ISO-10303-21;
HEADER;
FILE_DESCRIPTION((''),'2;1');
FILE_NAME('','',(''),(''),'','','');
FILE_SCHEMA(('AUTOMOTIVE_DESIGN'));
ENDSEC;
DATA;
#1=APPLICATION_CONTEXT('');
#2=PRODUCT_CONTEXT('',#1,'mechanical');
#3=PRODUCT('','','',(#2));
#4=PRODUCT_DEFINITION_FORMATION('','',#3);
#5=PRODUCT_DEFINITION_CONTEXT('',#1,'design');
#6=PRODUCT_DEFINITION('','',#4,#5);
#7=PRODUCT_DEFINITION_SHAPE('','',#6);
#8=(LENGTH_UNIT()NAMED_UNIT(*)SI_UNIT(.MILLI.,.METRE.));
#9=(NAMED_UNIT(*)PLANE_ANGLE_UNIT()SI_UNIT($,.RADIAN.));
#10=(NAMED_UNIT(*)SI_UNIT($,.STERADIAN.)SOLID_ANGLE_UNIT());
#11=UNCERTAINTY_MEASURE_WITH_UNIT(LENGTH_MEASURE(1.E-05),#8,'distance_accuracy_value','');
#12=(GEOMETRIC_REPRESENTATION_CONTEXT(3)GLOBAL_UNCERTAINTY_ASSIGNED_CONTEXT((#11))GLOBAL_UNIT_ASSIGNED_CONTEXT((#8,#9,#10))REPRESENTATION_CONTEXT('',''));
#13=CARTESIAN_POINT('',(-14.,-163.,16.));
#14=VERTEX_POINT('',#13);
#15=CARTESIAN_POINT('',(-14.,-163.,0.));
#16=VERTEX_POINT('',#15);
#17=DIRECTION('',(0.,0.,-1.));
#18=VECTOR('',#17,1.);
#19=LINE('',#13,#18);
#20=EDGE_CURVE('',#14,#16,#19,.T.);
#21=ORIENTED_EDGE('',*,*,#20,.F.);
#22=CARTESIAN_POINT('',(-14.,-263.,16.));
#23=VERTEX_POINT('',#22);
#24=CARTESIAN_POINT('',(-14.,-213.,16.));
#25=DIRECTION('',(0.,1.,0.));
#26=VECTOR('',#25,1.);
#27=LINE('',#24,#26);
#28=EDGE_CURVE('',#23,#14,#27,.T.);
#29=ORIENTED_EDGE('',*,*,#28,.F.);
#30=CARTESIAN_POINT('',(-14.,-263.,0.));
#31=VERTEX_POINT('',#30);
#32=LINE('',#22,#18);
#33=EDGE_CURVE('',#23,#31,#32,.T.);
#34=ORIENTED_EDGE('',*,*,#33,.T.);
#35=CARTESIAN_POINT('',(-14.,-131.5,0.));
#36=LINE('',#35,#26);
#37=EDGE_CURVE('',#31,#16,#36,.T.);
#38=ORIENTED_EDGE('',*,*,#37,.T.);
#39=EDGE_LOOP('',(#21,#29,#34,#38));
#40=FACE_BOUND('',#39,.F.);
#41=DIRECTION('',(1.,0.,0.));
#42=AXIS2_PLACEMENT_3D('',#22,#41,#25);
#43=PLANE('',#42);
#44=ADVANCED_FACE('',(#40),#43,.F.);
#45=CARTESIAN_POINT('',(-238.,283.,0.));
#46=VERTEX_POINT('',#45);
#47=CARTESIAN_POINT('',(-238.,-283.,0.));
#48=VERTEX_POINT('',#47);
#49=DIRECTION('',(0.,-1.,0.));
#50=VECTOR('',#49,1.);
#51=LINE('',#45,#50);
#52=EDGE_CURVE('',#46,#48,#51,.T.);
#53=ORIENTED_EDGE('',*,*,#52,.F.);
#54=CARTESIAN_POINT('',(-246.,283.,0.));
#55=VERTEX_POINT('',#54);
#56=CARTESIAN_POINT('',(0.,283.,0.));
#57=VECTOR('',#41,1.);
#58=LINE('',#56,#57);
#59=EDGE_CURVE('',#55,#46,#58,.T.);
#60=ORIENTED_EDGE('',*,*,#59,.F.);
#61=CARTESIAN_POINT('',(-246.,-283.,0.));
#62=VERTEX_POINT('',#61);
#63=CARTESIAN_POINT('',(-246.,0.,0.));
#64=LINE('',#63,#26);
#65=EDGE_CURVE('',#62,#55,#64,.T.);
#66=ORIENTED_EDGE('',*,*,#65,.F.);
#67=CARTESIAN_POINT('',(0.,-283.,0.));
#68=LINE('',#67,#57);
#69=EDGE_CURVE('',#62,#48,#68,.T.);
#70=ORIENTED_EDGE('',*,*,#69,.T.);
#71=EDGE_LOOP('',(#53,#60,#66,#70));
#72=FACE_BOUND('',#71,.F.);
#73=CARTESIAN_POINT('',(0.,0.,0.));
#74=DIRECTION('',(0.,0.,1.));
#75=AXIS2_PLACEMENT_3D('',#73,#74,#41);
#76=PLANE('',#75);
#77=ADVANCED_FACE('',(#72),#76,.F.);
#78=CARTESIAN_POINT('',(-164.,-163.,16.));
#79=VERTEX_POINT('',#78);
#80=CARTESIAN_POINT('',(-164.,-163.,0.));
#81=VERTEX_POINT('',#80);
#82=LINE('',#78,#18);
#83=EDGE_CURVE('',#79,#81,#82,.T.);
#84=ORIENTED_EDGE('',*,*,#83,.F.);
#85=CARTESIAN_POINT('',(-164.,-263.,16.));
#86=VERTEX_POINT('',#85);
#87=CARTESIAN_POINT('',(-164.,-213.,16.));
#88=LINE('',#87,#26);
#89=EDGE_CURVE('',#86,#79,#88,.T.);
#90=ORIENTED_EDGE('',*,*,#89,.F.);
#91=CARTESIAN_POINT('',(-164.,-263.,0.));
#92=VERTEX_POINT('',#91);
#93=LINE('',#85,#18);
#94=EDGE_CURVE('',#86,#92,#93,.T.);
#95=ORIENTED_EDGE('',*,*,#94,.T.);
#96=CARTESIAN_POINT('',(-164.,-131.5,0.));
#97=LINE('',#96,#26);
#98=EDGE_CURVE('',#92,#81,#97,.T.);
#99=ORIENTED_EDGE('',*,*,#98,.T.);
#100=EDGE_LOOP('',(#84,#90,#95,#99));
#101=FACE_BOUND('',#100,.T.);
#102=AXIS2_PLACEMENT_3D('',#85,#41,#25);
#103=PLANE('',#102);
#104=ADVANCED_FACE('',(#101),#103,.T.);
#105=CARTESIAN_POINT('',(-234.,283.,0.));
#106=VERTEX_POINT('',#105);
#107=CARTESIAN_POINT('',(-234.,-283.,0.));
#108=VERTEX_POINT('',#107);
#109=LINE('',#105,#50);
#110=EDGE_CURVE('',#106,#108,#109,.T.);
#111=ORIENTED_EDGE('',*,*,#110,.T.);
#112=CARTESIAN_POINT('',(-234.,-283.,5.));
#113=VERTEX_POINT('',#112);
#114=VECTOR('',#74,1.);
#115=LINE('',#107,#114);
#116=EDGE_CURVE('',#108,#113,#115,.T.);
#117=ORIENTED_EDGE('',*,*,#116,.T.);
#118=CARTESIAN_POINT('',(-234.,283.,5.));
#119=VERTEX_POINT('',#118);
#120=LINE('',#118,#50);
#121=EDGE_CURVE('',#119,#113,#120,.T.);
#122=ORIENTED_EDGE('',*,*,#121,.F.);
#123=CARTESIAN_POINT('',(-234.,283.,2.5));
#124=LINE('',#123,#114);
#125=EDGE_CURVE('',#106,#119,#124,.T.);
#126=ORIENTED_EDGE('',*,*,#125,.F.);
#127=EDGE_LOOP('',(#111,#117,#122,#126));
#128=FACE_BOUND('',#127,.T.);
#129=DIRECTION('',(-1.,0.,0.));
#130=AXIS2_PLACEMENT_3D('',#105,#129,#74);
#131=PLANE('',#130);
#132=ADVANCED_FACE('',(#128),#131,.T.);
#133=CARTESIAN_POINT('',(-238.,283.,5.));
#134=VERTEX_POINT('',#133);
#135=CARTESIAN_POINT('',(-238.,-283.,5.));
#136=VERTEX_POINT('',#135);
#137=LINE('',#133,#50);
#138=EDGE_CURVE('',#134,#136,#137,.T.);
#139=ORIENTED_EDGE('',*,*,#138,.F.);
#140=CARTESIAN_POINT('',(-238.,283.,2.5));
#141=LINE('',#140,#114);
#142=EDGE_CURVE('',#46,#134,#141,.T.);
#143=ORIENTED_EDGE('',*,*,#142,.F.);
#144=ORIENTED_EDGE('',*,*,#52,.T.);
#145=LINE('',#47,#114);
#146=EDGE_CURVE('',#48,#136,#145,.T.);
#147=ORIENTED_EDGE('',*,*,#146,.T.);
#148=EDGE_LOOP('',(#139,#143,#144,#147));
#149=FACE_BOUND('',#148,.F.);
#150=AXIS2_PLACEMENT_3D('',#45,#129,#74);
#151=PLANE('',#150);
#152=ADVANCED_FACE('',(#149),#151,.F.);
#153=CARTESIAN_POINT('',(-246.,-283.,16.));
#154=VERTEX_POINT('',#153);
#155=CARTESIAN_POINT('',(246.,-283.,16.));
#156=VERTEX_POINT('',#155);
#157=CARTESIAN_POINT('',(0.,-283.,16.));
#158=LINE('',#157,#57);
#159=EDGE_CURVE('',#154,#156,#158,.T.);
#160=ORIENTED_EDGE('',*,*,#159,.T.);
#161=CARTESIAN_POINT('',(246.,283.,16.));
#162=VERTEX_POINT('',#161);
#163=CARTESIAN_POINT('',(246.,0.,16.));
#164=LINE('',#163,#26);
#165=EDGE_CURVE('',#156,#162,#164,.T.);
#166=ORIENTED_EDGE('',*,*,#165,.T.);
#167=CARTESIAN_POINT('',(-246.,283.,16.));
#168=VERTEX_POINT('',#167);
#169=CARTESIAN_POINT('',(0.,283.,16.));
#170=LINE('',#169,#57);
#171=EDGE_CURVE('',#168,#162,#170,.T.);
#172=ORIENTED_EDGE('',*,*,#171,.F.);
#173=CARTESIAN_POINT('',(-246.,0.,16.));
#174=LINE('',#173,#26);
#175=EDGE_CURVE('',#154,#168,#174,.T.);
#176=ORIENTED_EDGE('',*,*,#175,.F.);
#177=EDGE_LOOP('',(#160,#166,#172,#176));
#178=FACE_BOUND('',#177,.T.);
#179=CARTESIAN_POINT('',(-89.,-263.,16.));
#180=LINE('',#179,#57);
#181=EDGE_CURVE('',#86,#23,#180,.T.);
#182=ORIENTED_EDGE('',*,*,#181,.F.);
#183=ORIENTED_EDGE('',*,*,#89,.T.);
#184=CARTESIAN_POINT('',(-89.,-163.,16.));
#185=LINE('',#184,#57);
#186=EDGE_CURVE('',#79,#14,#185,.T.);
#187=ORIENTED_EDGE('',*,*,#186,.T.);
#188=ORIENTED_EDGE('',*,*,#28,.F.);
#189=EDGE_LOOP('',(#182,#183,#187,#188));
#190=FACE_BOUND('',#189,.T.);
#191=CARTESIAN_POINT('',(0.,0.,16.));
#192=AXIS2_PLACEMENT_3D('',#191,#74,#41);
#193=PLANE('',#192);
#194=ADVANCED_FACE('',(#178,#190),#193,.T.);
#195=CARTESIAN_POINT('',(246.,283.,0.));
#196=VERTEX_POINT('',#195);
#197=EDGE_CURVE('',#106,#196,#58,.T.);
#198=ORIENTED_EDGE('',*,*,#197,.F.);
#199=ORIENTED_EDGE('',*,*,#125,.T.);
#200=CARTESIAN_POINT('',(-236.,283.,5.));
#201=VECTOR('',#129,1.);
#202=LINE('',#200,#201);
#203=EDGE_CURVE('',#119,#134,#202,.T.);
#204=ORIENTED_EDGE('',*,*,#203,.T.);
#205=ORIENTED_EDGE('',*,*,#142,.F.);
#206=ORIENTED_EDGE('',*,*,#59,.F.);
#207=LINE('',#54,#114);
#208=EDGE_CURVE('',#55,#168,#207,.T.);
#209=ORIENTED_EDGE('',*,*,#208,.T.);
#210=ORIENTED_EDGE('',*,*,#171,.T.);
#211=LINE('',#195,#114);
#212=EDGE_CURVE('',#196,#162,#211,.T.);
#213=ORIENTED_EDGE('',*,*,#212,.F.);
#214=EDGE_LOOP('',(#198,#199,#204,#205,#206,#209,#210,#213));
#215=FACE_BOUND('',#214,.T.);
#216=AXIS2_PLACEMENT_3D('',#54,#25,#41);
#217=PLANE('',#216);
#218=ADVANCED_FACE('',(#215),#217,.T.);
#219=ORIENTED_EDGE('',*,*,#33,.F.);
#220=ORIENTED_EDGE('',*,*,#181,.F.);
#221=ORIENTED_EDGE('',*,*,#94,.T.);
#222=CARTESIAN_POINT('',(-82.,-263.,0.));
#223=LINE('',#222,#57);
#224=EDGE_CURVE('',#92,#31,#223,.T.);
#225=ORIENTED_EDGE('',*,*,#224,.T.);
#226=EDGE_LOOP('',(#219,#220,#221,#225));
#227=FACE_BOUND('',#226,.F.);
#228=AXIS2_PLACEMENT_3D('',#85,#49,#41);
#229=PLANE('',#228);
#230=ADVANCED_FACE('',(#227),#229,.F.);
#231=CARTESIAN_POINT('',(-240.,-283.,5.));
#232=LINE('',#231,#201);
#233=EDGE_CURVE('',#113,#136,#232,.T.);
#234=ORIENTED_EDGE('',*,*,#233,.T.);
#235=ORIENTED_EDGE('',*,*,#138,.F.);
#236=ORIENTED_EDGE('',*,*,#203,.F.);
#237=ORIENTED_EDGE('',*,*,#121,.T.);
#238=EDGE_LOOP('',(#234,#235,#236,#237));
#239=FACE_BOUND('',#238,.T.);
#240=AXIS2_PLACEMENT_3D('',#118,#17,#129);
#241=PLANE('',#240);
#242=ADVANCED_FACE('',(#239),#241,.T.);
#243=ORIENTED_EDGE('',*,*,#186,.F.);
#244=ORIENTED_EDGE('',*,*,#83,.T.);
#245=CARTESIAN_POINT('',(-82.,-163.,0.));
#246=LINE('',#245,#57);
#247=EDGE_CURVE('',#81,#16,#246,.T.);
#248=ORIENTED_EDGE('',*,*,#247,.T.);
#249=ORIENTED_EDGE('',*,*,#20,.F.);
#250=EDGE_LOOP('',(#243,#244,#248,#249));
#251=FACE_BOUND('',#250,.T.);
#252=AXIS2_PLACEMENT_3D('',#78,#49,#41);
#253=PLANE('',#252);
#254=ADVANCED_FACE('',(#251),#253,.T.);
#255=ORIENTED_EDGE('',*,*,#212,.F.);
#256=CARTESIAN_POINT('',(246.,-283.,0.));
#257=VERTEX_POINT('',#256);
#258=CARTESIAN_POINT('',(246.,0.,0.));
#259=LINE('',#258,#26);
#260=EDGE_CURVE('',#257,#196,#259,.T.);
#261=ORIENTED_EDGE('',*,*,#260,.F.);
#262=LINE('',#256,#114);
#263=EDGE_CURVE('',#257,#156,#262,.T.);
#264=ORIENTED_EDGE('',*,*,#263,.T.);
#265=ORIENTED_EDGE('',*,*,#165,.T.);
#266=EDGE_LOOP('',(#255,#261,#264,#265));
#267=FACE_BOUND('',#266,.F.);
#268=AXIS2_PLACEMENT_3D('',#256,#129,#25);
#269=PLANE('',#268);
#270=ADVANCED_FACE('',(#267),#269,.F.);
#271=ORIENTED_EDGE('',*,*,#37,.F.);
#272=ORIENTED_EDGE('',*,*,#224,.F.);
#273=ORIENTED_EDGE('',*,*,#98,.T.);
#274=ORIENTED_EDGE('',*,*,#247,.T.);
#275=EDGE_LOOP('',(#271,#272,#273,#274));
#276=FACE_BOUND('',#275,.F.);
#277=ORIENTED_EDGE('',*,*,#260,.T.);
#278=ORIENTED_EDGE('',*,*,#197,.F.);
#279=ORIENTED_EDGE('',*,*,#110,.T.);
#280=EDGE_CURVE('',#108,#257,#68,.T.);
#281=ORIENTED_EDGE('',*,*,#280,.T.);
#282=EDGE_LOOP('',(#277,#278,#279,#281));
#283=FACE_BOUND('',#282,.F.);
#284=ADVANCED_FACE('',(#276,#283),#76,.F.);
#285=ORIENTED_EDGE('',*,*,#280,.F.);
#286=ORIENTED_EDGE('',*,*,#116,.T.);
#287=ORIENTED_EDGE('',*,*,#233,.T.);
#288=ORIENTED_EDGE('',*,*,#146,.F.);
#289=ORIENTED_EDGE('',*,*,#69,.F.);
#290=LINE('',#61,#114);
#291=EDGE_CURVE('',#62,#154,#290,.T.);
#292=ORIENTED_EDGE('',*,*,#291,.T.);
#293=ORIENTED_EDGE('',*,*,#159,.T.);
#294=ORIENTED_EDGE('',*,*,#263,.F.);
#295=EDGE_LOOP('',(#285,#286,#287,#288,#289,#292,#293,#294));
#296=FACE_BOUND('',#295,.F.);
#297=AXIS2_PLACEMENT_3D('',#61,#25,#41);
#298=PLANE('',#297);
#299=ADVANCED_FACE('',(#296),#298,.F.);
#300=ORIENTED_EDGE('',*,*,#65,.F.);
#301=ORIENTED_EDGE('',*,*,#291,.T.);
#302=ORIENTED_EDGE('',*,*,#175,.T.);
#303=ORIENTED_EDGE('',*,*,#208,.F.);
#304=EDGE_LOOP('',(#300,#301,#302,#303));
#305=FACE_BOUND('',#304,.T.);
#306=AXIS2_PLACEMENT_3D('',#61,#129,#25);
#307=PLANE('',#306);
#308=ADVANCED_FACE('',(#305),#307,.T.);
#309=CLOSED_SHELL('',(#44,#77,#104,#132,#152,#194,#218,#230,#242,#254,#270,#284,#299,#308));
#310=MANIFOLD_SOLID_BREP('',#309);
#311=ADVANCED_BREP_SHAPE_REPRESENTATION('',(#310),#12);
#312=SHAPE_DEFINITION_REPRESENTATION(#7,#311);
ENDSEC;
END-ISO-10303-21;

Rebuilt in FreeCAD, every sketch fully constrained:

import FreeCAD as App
import Part
import Sketcher
from FreeCAD import Vector


def add_polygon(sketch, points):
    """Adds a closed chain of lines whose ends are joined by coincident constraints."""
    first, n = sketch.GeometryCount, len(points)
    for a, b in zip(points, points[1:] + points[:1]):
        sketch.addGeometry(Part.LineSegment(App.Vector(*a, 0), App.Vector(*b, 0)), False)
    for i in range(n):
        sketch.addConstraint(Sketcher.Constraint("Coincident", first + i, 2, first + (i + 1) % n, 1))

doc = App.newDocument("Part")
body = doc.addObject("PartDesign::Body", "Body")

# Sketch on XY plane
sketch1 = doc.addObject("Sketcher::SketchObject", "Sketch")
body.addObject(sketch1)
sketch1.AttachmentSupport = (doc.XY_Plane, [""])
sketch1.MapMode = "FlatFace"
add_polygon(sketch1, [(-246, 283), (-246, -283), (246, -283), (246, 283)])  # lines 0-3
sketch1.addConstraint([
    Sketcher.Constraint("Vertical", 0),
    Sketcher.Constraint("Horizontal", 1),
    Sketcher.Constraint("Vertical", 2),
    Sketcher.Constraint("Horizontal", 3),
    Sketcher.Constraint("Symmetric", 0, 2, 2, 2, -1, 1),
    Sketcher.Constraint("DistanceX", 1, 1, 1, 2, 492.0),
    Sketcher.Constraint("DistanceY", 0, 2, 0, 1, 566.0),
])
pad1 = doc.addObject("PartDesign::Pad", "Pad")
body.addObject(pad1)
pad1.Profile = sketch1
pad1.Length = 16

# Sketch on XY plane
sketch2 = doc.addObject("Sketcher::SketchObject", "Sketch001")
body.addObject(sketch2)
sketch2.AttachmentSupport = (doc.XY_Plane, [""])
sketch2.MapMode = "FlatFace"
sketch2.AttachmentOffset = App.Placement(Vector(0, 0, 16), App.Rotation())
add_polygon(sketch2, [(-164, -163), (-164, -263), (-14, -263), (-14, -163)])  # lines 0-3
sketch2.addConstraint([
    Sketcher.Constraint("Vertical", 0),
    Sketcher.Constraint("Horizontal", 1),
    Sketcher.Constraint("Vertical", 2),
    Sketcher.Constraint("Horizontal", 3),
    Sketcher.Constraint("DistanceX", 1, 1, 1, 2, 150.0),
    Sketcher.Constraint("DistanceY", 0, 2, 0, 1, 100.0),
    Sketcher.Constraint("DistanceX", 0, 2, -1, 1, 164.0),
    Sketcher.Constraint("DistanceY", 0, 2, -1, 1, 263.0),
])
pocket1 = doc.addObject("PartDesign::Pocket", "Pocket")
body.addObject(pocket1)
pocket1.Profile = sketch2
pocket1.Type = "ThroughAll"

# Sketch on XZ plane
sketch3 = doc.addObject("Sketcher::SketchObject", "Sketch002")
body.addObject(sketch3)
sketch3.AttachmentSupport = (doc.XZ_Plane, [""])
sketch3.MapMode = "FlatFace"
sketch3.AttachmentOffset = App.Placement(Vector(0, 0, -283), App.Rotation())
add_polygon(sketch3, [(-234, 5), (-234, 0), (-238, 0), (-238, 5)])  # lines 0-3
sketch3.addConstraint([
    Sketcher.Constraint("Vertical", 0),
    Sketcher.Constraint("Horizontal", 1),
    Sketcher.Constraint("Vertical", 2),
    Sketcher.Constraint("Horizontal", 3),
    Sketcher.Constraint("PointOnObject", 0, 2, -1),
    Sketcher.Constraint("DistanceX", 1, 2, 1, 1, 4.0),
    Sketcher.Constraint("DistanceY", 0, 2, 0, 1, 5.0),
    Sketcher.Constraint("DistanceX", 0, 2, -1, 1, 234.0),
])
pocket2 = doc.addObject("PartDesign::Pocket", "Pocket001")
body.addObject(pocket2)
pocket2.Profile = sketch3
pocket2.Type = "ThroughAll"
pocket2.Reversed = True

doc.recompute()
